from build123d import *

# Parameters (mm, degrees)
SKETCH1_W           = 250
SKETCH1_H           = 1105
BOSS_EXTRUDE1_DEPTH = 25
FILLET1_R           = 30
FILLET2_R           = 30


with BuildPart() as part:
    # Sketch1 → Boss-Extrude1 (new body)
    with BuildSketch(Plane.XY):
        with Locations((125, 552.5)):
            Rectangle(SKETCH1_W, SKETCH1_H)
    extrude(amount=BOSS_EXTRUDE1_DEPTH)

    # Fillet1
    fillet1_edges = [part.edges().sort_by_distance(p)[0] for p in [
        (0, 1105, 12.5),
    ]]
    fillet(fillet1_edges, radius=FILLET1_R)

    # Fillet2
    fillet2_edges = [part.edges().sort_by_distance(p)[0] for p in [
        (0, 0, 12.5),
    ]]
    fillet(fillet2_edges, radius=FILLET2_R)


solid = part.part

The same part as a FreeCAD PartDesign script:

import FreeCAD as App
import Part
import Sketcher
Q = App.Units.Quantity


def edges_at(feature, points):
    """Names of the edges that pass closest to the given points."""
    edges = feature.Shape.Edges
    near = lambda p: min(range(len(edges)), key=lambda i: edges[i].distToShape(Part.Vertex(*p))[0])
    return sorted({f"Edge{near(p) + 1}" for p in points})


def add_polygon(sketch, points):
    """Adds a closed chain of lines whose ends are joined by coincident constraints."""
    first, n = sketch.GeometryCount, len(points)
    for a, b in zip(points, points[1:] + points[:1]):
        sketch.addGeometry(Part.LineSegment(App.Vector(*a, 0), App.Vector(*b, 0)), False)
    for i in range(n):
        sketch.addConstraint(Sketcher.Constraint("Coincident", first + i, 2, first + (i + 1) % n, 1))

doc = App.newDocument("Part")
body = doc.addObject("PartDesign::Body", "Body")

sketch1 = body.newObject("Sketcher::SketchObject", "Sketch")
sketch1.AttachmentSupport = (doc.getObject("XY_Plane"), [""])
sketch1.MapMode = "FlatFace"
add_polygon(sketch1, [(0, 1105), (0, 0), (250, 0), (250, 1105)])
sketch1.addConstraint([
    Sketcher.Constraint("Vertical", 0),
    Sketcher.Constraint("Horizontal", 1),
    Sketcher.Constraint("Vertical", 2),
    Sketcher.Constraint("Horizontal", 3),
    Sketcher.Constraint("Coincident", 0, 2, -1, 1),
    Sketcher.Constraint("DistanceX", 1, 1, 1, 2, Q("250 mm")),
    Sketcher.Constraint("DistanceY", 0, 2, 0, 1, Q("1105 mm")),
])
pad1 = body.newObject("PartDesign::Pad", "Pad")
pad1.Profile = sketch1
pad1.Length = 25
doc.recompute()

fillet = body.newObject("PartDesign::Fillet", "Fillet")
fillet.Base = (pad1, edges_at(pad1, [(0, 1105, 12.5)]))
fillet.Radius = 30
doc.recompute()

fillet2 = body.newObject("PartDesign::Fillet", "Fillet001")
fillet2.Base = (fillet, edges_at(fillet, [(0, 0, 12.5)]))
fillet2.Radius = 30

doc.recompute()
